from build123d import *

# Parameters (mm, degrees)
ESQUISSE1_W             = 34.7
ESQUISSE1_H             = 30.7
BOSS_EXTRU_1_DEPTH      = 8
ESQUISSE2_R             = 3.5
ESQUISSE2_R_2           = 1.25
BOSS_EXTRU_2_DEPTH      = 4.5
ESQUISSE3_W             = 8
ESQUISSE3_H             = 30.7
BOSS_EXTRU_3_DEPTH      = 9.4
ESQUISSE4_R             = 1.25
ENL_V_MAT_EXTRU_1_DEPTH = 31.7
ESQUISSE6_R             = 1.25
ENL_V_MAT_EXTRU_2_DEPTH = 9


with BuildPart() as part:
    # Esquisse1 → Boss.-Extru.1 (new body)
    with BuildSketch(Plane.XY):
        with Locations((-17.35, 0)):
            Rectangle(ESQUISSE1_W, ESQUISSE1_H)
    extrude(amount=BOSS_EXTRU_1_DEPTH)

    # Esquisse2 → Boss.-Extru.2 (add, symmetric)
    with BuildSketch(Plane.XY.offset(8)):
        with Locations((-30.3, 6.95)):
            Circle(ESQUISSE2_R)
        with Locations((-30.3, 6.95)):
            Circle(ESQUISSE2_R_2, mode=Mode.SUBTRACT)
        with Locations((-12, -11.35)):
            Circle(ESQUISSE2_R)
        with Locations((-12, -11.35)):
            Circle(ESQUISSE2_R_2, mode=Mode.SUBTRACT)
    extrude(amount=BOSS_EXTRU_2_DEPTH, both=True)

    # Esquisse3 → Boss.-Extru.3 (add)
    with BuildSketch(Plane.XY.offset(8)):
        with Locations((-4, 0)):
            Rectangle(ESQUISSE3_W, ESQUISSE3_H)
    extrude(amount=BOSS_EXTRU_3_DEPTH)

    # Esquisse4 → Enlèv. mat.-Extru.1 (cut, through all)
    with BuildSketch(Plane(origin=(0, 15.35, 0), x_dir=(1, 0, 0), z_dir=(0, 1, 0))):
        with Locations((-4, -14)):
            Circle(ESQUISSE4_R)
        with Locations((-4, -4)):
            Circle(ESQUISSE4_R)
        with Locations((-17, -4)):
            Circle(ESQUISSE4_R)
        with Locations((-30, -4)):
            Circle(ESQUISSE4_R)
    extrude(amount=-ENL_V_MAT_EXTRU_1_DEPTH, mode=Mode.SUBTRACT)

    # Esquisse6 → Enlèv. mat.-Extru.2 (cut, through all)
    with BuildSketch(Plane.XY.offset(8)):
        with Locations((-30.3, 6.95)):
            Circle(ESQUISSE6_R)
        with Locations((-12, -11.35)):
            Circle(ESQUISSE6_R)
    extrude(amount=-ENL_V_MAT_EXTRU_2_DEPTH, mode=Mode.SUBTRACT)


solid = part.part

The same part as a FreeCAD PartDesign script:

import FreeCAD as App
import Part
import Sketcher

V = App.Vector


def add_polygon(sketch, points):
    """Adds a closed chain of lines whose ends are joined by coincident constraints."""
    first, n = sketch.GeometryCount, len(points)
    for a, b in zip(points, points[1:] + points[:1]):
        sketch.addGeometry(Part.LineSegment(App.Vector(*a, 0), App.Vector(*b, 0)), False)
    for i in range(n):
        sketch.addConstraint(Sketcher.Constraint("Coincident", first + i, 2, first + (i + 1) % n, 1))

doc = App.newDocument("Part")
body = doc.addObject("PartDesign::Body", "Body")

# Sketch on XY plane
sketch1 = doc.addObject("Sketcher::SketchObject", "Sketch")
body.addObject(sketch1)
sketch1.AttachmentSupport = (doc.XY_Plane, [""])
sketch1.MapMode = "FlatFace"
add_polygon(sketch1, [(-35, 15), (-35, -15), (0, -15), (0, 15)])  # lines 0-3
sketch1.addConstraint([
    Sketcher.Constraint("Vertical", 0),
    Sketcher.Constraint("Horizontal", 1),
    Sketcher.Constraint("Vertical", 2),
    Sketcher.Constraint("Horizontal", 3),
    Sketcher.Constraint("Symmetric", 1, 2, 2, 2, -1, 1),
    Sketcher.Constraint("DistanceX", 1, 1, 1, 2, 34.7),
    Sketcher.Constraint("DistanceY", 0, 2, 0, 1, 30.7),
])
pad1 = doc.addObject("PartDesign::Pad", "Pad")
body.addObject(pad1)
pad1.Profile = sketch1
pad1.Length = 8

# Sketch on XY plane
sketch2 = doc.addObject("Sketcher::SketchObject", "Sketch001")
body.addObject(sketch2)
sketch2.AttachmentSupport = (doc.XY_Plane, [""])
sketch2.MapMode = "FlatFace"
sketch2.AttachmentOffset = App.Placement(V(0, 0, 8), App.Rotation())
sketch2.addGeometry([
    Part.Circle(V(-30.3, 7, 0), V(0, 0, 1), 3.5),
    Part.Circle(V(-30.3, 7, 0), V(0, 0, 1), 1.2),
    Part.Circle(V(-12, -11.3, 0), V(0, 0, 1), 3.5),
    Part.Circle(V(-12, -11.3, 0), V(0, 0, 1), 1.2),
], False)
sketch2.addConstraint([
    Sketcher.Constraint("Coincident", 1, 3, 0, 3),
    Sketcher.Constraint("Coincident", 3, 3, 2, 3),
    Sketcher.Constraint("Equal", 0, 2),
    Sketcher.Constraint("Equal", 1, 3),
    Sketcher.Constraint("Diameter", 0, 7.0),
    Sketcher.Constraint("Diameter", 1, 2.5),
    Sketcher.Constraint("DistanceX", 2, 3, -1, 1, 12.0),
    Sketcher.Constraint("DistanceX", 0, 3, -1, 1, 30.3),
    Sketcher.Constraint("DistanceY", 2, 3, 0, 3, 18.3),
    Sketcher.Constraint("DistanceY", -1, 1, 0, 3, 6.95),
])
pad2 = doc.addObject("PartDesign::Pad", "Pad001")
body.addObject(pad2)
pad2.Profile = sketch2
pad2.Length = 9
pad2.Midplane = True

# Sketch on XY plane
sketch3 = doc.addObject("Sketcher::SketchObject", "Sketch002")
body.addObject(sketch3)
sketch3.AttachmentSupport = (doc.XY_Plane, [""])
sketch3.MapMode = "FlatFace"
sketch3.AttachmentOffset = App.Placement(V(0, 0, 8), App.Rotation())
add_polygon(sketch3, [(-8, 15), (-8, -15), (0, -15), (0, 15)])  # lines 0-3
sketch3.addConstraint([
    Sketcher.Constraint("Vertical", 0),
    Sketcher.Constraint("Horizontal", 1),
    Sketcher.Constraint("Vertical", 2),
    Sketcher.Constraint("Horizontal", 3),
    Sketcher.Constraint("Symmetric", 1, 2, 2, 2, -1, 1),
    Sketcher.Constraint("DistanceX", 1, 1, 1, 2, 8.0),
    Sketcher.Constraint("DistanceY", 0, 2, 0, 1, 30.7),
])
pad3 = doc.addObject("PartDesign::Pad", "Pad002")
body.addObject(pad3)
pad3.Profile = sketch3
pad3.Length = 9.4

# Sketch on XZ plane
sketch4 = doc.addObject("Sketcher::SketchObject", "Sketch003")
body.addObject(sketch4)
sketch4.AttachmentSupport = (doc.XZ_Plane, [""])
sketch4.MapMode = "FlatFace"
sketch4.AttachmentOffset = App.Placement(V(0, 0, -15.35), App.Rotation())
sketch4.addGeometry([
    Part.Circle(V(-4, 14, 0), V(0, 0, 1), 1.2),
    Part.Circle(V(-4, 4, 0), V(0, 0, 1), 1.2),
    Part.Circle(V(-17, 4, 0), V(0, 0, 1), 1.2),
    Part.Circle(V(-30, 4, 0), V(0, 0, 1), 1.2),
], False)
sketch4.addConstraint([
    Sketcher.Constraint("Equal", 0, 1),
    Sketcher.Constraint("Equal", 1, 2),
    Sketcher.Constraint("Equal", 2, 3),
    Sketcher.Constraint("Horizontal", 1, 3, 2, 3),
    Sketcher.Constraint("Horizontal", 2, 3, 3, 3),
    Sketcher.Constraint("Vertical", 0, 3, 1, 3),
    Sketcher.Constraint("Diameter", 0, 2.5),
    Sketcher.Constraint("DistanceX", 0, 3, -1, 1, 4.0),
    Sketcher.Constraint("DistanceY", -1, 1, 0, 3, 14.0),
    Sketcher.Constraint("DistanceY", -1, 1, 1, 3, 4.0),
    Sketcher.Constraint("DistanceX", 2, 3, -1, 1, 17.0),
    Sketcher.Constraint("DistanceX", 3, 3, -1, 1, 30.0),
])
pocket1 = doc.addObject("PartDesign::Pocket", "Pocket")
body.addObject(pocket1)
pocket1.Profile = sketch4
pocket1.Type = "ThroughAll"
pocket1.Reversed = True

# Sketch on XY plane
sketch5 = doc.addObject("Sketcher::SketchObject", "Sketch004")
body.addObject(sketch5)
sketch5.AttachmentSupport = (doc.XY_Plane, [""])
sketch5.MapMode = "FlatFace"
sketch5.AttachmentOffset = App.Placement(V(0, 0, 8), App.Rotation())
sketch5.addGeometry([
    Part.Circle(V(-30.3, 7, 0), V(0, 0, 1), 1.2),
    Part.Circle(V(-12, -11.3, 0), V(0, 0, 1), 1.2),
], False)
sketch5.addConstraint([
    Sketcher.Constraint("Equal", 0, 1),
    Sketcher.Constraint("Diameter", 0, 2.5),
    Sketcher.Constraint("DistanceX", 1, 3, -1, 1, 12.0),
    Sketcher.Constraint("DistanceX", 0, 3, -1, 1, 30.3),
    Sketcher.Constraint("DistanceY", 1, 3, 0, 3, 18.3),
    Sketcher.Constraint("DistanceY", -1, 1, 0, 3, 6.95),
])
pocket2 = doc.addObject("PartDesign::Pocket", "Pocket001")
body.addObject(pocket2)
pocket2.Profile = sketch5
pocket2.Type = "ThroughAll"

doc.recompute()
